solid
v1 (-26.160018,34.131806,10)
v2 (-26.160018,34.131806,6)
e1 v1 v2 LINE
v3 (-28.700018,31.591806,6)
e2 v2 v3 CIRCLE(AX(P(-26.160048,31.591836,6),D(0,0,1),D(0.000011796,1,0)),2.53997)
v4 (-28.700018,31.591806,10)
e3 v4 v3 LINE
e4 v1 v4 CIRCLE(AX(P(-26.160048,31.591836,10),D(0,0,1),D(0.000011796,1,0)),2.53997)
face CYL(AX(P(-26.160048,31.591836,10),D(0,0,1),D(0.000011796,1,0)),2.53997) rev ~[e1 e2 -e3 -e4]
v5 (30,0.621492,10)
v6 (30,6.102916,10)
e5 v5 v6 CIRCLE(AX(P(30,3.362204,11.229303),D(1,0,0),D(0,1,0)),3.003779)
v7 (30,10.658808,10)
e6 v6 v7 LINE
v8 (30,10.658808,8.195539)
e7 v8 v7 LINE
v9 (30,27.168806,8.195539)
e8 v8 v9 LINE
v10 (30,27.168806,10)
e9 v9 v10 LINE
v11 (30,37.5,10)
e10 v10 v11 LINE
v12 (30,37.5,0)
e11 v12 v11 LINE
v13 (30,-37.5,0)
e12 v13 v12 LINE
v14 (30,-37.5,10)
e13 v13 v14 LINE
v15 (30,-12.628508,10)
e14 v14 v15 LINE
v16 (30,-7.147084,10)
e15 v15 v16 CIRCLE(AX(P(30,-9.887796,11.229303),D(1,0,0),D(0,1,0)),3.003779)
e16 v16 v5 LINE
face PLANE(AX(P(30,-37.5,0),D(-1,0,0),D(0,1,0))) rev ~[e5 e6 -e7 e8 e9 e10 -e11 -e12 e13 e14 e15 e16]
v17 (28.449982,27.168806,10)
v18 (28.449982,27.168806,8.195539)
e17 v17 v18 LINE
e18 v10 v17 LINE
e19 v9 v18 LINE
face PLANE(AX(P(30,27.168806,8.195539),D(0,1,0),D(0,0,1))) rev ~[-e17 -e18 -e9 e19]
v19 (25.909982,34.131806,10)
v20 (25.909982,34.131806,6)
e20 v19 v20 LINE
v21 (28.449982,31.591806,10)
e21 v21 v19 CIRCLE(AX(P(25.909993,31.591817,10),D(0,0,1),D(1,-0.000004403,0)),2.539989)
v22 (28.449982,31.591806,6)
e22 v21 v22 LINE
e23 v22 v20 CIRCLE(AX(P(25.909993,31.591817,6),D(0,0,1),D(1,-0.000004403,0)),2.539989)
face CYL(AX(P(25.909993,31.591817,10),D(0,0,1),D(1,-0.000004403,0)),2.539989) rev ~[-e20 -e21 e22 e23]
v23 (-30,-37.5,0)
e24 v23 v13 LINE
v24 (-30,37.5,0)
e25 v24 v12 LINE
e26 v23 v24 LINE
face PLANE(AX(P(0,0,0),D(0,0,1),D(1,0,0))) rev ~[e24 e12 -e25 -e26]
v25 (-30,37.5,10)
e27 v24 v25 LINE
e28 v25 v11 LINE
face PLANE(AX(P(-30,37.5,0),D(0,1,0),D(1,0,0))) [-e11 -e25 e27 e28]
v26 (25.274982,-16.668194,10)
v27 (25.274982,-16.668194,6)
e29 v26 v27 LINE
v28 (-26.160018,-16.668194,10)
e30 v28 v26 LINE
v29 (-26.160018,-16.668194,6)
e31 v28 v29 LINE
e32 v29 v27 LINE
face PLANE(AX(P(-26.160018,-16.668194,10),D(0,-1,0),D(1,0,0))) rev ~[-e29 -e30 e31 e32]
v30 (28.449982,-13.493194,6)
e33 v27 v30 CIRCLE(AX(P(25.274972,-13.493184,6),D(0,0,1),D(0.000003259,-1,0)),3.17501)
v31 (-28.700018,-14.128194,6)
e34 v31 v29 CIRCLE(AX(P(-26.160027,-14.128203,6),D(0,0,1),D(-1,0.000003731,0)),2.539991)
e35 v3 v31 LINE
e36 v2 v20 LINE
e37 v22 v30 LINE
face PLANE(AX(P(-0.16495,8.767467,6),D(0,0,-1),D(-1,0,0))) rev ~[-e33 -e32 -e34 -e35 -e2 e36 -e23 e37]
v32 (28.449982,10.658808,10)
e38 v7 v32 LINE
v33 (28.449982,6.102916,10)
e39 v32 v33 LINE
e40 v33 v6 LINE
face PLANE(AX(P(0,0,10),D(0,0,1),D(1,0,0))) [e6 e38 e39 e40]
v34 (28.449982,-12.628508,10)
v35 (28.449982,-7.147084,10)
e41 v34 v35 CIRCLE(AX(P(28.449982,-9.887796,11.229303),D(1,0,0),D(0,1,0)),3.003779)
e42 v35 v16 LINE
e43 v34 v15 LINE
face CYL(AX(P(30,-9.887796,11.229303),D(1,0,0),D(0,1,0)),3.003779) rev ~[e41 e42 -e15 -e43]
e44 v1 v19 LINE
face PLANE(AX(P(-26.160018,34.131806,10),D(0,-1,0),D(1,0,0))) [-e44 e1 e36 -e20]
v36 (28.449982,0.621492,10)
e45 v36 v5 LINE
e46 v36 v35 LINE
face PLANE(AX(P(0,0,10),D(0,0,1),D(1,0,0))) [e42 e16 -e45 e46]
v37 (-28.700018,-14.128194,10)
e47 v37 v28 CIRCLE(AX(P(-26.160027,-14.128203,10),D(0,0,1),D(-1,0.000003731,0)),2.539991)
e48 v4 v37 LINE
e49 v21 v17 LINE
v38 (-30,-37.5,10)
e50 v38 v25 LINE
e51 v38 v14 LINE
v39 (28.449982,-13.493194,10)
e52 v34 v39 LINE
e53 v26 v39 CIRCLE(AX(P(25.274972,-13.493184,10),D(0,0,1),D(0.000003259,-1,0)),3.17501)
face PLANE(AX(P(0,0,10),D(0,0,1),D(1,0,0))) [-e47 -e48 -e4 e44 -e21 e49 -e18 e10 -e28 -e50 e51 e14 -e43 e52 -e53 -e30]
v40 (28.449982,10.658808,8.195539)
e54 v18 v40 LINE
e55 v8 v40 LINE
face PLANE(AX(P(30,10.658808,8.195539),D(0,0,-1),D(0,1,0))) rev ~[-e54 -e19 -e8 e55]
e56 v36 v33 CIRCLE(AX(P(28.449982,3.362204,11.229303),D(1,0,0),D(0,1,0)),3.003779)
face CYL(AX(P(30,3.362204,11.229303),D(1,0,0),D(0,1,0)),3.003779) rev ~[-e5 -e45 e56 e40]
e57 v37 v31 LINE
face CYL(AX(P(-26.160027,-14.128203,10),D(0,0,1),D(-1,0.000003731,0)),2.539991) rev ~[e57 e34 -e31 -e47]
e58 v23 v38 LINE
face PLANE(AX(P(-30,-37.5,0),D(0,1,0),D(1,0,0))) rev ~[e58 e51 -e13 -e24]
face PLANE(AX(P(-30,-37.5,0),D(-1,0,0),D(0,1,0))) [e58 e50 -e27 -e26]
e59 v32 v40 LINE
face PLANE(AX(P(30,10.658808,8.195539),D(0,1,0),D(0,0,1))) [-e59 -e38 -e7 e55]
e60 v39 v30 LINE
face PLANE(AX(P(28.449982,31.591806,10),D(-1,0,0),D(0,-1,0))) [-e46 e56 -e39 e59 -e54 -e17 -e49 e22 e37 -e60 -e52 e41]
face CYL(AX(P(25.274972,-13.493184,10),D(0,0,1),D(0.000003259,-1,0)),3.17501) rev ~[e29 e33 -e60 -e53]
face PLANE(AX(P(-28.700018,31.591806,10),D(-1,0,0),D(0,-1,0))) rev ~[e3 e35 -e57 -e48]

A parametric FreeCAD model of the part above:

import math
import FreeCAD as App
import Part
import Sketcher
from FreeCAD import Vector


def add_polygon(sketch, points):
    """Adds a closed chain of lines whose ends are joined by coincident constraints."""
    first, n = sketch.GeometryCount, len(points)
    for a, b in zip(points, points[1:] + points[:1]):
        sketch.addGeometry(Part.LineSegment(App.Vector(*a, 0), App.Vector(*b, 0)), False)
    for i in range(n):
        sketch.addConstraint(Sketcher.Constraint("Coincident", first + i, 2, first + (i + 1) % n, 1))

doc = App.newDocument("Part")
body = doc.addObject("PartDesign::Body", "Body")

# Sketch on XY plane
sketch1 = doc.addObject("Sketcher::SketchObject", "Sketch")
body.addObject(sketch1)
sketch1.AttachmentSupport = (doc.XY_Plane, [""])
sketch1.MapMode = "FlatFace"
add_polygon(sketch1, [(-30, 38), (-30, -38), (30, -38), (30, 38)])  # lines 0-3
sketch1.addConstraint([
    Sketcher.Constraint("Vertical", 0),
    Sketcher.Constraint("Horizontal", 1),
    Sketcher.Constraint("Vertical", 2),
    Sketcher.Constraint("Horizontal", 3),
    Sketcher.Constraint("Symmetric", 0, 2, 2, 2, -1, 1),
    Sketcher.Constraint("DistanceX", 1, 1, 1, 2, 60.0),
    Sketcher.Constraint("DistanceY", 0, 2, 0, 1, 75.0),
])
pad1 = doc.addObject("PartDesign::Pad", "Pad")
body.addObject(pad1)
pad1.Profile = sketch1
pad1.Length = 10

# Sketch on XY plane
sketch2 = doc.addObject("Sketcher::SketchObject", "Sketch001")
body.addObject(sketch2)
sketch2.AttachmentSupport = (doc.XY_Plane, [""])
sketch2.MapMode = "FlatFace"
sketch2.AttachmentOffset = App.Placement(Vector(0, 0, 10), App.Rotation())
sketch2.addGeometry([
    Part.LineSegment(Vector(25.9, 34.1, 0), Vector(-26.2, 34.1, 0)),  # 0
    Part.ArcOfCircle(Part.Circle(Vector(-26.2, 31.6, 0), Vector(0, 0, 1), 2.5), math.radians(90), math.radians(180)),  # 1
    Part.LineSegment(Vector(-28.7, 31.6, 0), Vector(-28.7, -14.1, 0)),  # 2
    Part.ArcOfCircle(Part.Circle(Vector(-26.2, -14.1, 0), Vector(0, 0, 1), 2.5), math.radians(180), math.radians(270)),  # 3
    Part.LineSegment(Vector(-26.2, -16.7, 0), Vector(25.3, -16.7, 0)),  # 4
    Part.ArcOfCircle(Part.Circle(Vector(25.3, -13.5, 0), Vector(0, 0, 1), 3.2), math.radians(-90), math.radians(0)),  # 5
    Part.LineSegment(Vector(28.4, -13.5, 0), Vector(28.4, 31.6, 0)),  # 6
    Part.ArcOfCircle(Part.Circle(Vector(25.9, 31.6, 0), Vector(0, 0, 1), 2.5), math.radians(0), math.radians(90)),  # 7
], False)
sketch2.addConstraint([
    Sketcher.Constraint("Coincident", 0, 2, 1, 1),
    Sketcher.Constraint("Coincident", 1, 2, 2, 1),
    Sketcher.Constraint("Coincident", 2, 2, 3, 1),
    Sketcher.Constraint("Coincident", 3, 2, 4, 1),
    Sketcher.Constraint("Coincident", 4, 2, 5, 1),
    Sketcher.Constraint("Coincident", 5, 2, 6, 1),
    Sketcher.Constraint("Coincident", 6, 2, 7, 1),
    Sketcher.Constraint("Coincident", 7, 2, 0, 1),
    Sketcher.Constraint("Horizontal", 0),
    Sketcher.Constraint("Vertical", 2),
    Sketcher.Constraint("Horizontal", 4),
    Sketcher.Constraint("Vertical", 6),
    Sketcher.Constraint("Equal", 3, 7),
    Sketcher.Constraint("Horizontal", 1, 2, 6, 2),
    Sketcher.Constraint("Vertical", 0, 2, 3, 2),
    Sketcher.Constraint("DistanceX", 0, 2, 0, 1, 52.07),
    Sketcher.Constraint("DistanceY", 2, 2, 2, 1, 45.72),
    Sketcher.Constraint("DistanceY", 3, 2, 0, 2, 50.8),
    Sketcher.Constraint("DistanceX", 4, 1, 4, 2, 51.435),
    Sketcher.Constraint("DistanceY", 6, 1, 6, 2, 45.085),
    Sketcher.Constraint("Radius", 1, 2.53997),
    Sketcher.Constraint("Radius", 3, 2.539991),
    Sketcher.Constraint("Radius", 5, 3.17501),
    Sketcher.Constraint("DistanceX", 1, 2, 0, 2, 2.54),
    Sketcher.Constraint("DistanceY", 1, 2, 0, 2, 2.54),
    Sketcher.Constraint("DistanceX", 3, 2, 5, 2, 54.61),
    Sketcher.Constraint("DistanceX", -1, 1, 5, 3, 25.274972),
    Sketcher.Constraint("DistanceY", -1, 1, 1, 3, 31.591836),
])
pocket1 = doc.addObject("PartDesign::Pocket", "Pocket")
body.addObject(pocket1)
pocket1.Profile = sketch2
pocket1.Length = 4

# Sketch on YZ plane
sketch3 = doc.addObject("Sketcher::SketchObject", "Sketch002")
body.addObject(sketch3)
sketch3.AttachmentSupport = (doc.YZ_Plane, [""])
sketch3.MapMode = "FlatFace"
sketch3.AttachmentOffset = App.Placement(Vector(0, 0, 30), App.Rotation())
sketch3.addGeometry(Part.Circle(Vector(3.4, 11.2, 0), Vector(0, 0, 1), 3), False)  # 0
sketch3.addGeometry(Part.Circle(Vector(-9.9, 11.2, 0), Vector(0, 0, 1), 3), False)  # 1
add_polygon(sketch3, [(10.7, 21.7), (10.7, 8.2), (27.2, 8.2), (27.2, 21.7)])  # lines 2-5
sketch3.addConstraint([
    Sketcher.Constraint("Vertical", 2),
    Sketcher.Constraint("Horizontal", 3),
    Sketcher.Constraint("Vertical", 4),
    Sketcher.Constraint("Horizontal", 5),
    Sketcher.Constraint("Equal", 0, 1),
    Sketcher.Constraint("Horizontal", 0, 3, 1, 3),
    Sketcher.Constraint("DistanceY", 2, 2, 2, 1, 13.460002),
    Sketcher.Constraint("Diameter", 0, 6.007558),
    Sketcher.Constraint("DistanceX", 1, 3, 0, 3, 13.25),
    Sketcher.Constraint("DistanceX", 0, 3, 3, 2, 23.806602),
    Sketcher.Constraint("DistanceX", 3, 1, 3, 2, 16.509998),
    Sketcher.Constraint("DistanceY", -1, 1, 2, 2, 8.195539),
    Sketcher.Constraint("DistanceX", -1, 1, 0, 3, 3.362204),
    Sketcher.Constraint("DistanceY", -1, 1, 0, 3, 11.229303),
])
pocket2 = doc.addObject("PartDesign::Pocket", "Pocket001")
body.addObject(pocket2)
pocket2.Profile = sketch3
pocket2.Length = 5

doc.recompute()
